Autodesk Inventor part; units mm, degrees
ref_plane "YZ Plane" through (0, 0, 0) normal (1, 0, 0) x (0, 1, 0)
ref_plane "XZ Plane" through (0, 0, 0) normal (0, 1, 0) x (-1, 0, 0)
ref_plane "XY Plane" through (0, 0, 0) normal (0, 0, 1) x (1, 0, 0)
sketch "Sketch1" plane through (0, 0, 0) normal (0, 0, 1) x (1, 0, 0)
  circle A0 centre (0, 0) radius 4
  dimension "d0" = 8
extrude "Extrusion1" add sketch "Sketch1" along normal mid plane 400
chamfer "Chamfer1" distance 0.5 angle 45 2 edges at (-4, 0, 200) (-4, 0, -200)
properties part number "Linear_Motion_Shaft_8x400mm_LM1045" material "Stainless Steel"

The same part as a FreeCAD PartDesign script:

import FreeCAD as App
import Part
import Sketcher

V = App.Vector
Q = App.Units.Quantity


def edges_at(feature, points):
    """Names of the edges that pass closest to the given points."""
    edges = feature.Shape.Edges
    near = lambda p: min(range(len(edges)), key=lambda i: edges[i].distToShape(Part.Vertex(*p))[0])
    return sorted({f"Edge{near(p) + 1}" for p in points})

doc = App.newDocument("Part")
body = doc.addObject("PartDesign::Body", "Body")

# Sketch on XY plane
sketch1 = body.newObject("Sketcher::SketchObject", "Sketch")
sketch1.AttachmentSupport = (doc.getObject("XY_Plane"), [""])
sketch1.MapMode = "FlatFace"
sketch1.addGeometry(Part.Circle(V(0, 0, 0), V(0, 0, 1), 4), False)
sketch1.addConstraint([
    Sketcher.Constraint("Coincident", 0, 3, -1, 1),
    Sketcher.Constraint("Diameter", 0, Q("8 mm")),
])
pad1 = body.newObject("PartDesign::Pad", "Pad")
pad1.Profile = sketch1
pad1.Length = 400
pad1.Midplane = True
doc.recompute()

chamfer = body.newObject("PartDesign::Chamfer", "Chamfer")
chamfer.Base = (pad1, edges_at(pad1, [(-4, 0, 200), (-4, 0, -200)]))
chamfer.Size = 0.5

doc.recompute()
